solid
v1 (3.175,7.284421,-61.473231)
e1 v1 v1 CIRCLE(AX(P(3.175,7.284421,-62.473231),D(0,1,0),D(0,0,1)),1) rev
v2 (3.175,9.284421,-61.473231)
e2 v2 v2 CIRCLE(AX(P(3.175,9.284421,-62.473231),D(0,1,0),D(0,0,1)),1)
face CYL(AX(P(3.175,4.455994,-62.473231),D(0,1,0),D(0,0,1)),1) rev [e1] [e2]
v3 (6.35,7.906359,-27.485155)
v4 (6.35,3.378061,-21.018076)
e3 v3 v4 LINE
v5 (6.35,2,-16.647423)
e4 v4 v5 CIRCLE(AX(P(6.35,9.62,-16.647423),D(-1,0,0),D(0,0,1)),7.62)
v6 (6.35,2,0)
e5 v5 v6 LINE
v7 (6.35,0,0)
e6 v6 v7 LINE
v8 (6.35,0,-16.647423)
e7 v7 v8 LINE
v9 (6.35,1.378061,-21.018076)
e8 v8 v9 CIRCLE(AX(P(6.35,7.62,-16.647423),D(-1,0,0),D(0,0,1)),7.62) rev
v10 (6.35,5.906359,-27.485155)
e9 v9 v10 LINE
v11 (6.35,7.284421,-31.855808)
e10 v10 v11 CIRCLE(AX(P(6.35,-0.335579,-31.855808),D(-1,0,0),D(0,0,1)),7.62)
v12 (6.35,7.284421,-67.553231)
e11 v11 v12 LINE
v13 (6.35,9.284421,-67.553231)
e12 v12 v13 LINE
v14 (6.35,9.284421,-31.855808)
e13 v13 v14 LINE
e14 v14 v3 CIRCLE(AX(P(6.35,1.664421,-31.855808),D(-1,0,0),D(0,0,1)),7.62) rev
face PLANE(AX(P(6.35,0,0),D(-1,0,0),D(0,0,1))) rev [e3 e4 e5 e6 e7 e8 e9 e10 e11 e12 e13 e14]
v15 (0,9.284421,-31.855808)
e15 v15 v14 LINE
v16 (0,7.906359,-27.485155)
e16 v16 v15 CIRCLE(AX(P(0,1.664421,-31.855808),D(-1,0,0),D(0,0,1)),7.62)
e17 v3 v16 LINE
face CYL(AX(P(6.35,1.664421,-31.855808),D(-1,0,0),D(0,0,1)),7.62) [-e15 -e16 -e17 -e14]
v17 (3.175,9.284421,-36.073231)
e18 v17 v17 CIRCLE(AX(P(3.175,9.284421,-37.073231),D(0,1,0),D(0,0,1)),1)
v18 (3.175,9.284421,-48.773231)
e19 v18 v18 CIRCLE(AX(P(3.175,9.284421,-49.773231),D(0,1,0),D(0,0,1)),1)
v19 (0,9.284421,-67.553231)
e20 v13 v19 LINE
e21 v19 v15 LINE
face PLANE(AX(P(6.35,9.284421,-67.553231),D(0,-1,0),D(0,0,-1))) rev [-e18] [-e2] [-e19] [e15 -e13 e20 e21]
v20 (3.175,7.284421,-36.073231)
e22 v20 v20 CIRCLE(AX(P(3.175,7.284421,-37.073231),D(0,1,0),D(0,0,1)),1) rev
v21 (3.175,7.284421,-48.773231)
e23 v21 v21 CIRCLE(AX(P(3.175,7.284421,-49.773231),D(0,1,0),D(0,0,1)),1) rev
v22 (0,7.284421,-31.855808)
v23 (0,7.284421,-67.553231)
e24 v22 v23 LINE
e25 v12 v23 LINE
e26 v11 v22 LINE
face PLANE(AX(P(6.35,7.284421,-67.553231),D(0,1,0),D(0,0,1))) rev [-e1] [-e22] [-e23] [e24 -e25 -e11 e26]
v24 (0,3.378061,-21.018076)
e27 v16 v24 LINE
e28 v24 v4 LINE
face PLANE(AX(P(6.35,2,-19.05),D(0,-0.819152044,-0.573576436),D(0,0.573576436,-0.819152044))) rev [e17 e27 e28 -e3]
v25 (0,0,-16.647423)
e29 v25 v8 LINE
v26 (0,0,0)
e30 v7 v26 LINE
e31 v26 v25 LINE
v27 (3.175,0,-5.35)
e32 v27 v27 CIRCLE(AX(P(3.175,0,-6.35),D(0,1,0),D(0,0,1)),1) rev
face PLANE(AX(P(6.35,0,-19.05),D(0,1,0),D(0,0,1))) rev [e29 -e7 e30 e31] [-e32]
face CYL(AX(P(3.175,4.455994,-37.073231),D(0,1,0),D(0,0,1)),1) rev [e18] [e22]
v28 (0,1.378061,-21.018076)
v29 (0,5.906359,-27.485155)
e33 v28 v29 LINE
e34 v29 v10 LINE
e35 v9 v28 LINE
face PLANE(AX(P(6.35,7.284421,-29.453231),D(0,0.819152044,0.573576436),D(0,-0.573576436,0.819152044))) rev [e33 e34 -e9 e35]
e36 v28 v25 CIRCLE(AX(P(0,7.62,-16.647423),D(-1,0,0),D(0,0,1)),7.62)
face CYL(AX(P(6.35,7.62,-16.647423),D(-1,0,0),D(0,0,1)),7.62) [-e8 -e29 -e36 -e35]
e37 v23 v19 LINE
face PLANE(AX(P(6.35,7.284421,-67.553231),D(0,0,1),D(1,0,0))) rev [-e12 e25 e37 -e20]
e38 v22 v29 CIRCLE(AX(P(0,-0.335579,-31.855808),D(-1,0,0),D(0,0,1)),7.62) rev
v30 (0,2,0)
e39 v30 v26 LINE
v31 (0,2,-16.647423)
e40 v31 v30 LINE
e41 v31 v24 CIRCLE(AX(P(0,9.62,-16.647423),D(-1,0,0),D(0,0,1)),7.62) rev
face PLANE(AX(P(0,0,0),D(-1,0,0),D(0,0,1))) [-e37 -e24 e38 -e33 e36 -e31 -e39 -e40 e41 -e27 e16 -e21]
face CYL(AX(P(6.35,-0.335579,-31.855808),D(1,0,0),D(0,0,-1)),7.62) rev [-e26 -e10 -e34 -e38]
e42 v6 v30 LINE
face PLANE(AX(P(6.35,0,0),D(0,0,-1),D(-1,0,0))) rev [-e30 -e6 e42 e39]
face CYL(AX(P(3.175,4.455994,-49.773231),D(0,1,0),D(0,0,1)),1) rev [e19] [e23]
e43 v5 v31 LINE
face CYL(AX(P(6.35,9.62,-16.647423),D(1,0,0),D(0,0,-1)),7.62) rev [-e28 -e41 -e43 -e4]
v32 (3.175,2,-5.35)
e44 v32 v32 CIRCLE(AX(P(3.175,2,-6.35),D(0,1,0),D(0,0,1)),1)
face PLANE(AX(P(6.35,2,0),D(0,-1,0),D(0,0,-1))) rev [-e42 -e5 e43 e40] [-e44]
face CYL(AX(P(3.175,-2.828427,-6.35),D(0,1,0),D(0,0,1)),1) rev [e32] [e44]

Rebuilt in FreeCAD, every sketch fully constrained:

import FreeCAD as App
import Part
import Sketcher
Q = App.Units.Quantity


def edges_at(feature, points):
    """Names of the edges that pass closest to the given points."""
    edges = feature.Shape.Edges
    near = lambda p: min(range(len(edges)), key=lambda i: edges[i].distToShape(Part.Vertex(*p))[0])
    return sorted({f"Edge{near(p) + 1}" for p in points})

doc = App.newDocument("Part")
params = doc.addObject("Spreadsheet::Sheet", "Params")
for row, (alias, value) in enumerate([
    ("sketch1_height", "1.5 in"),
    ("sketch1_length", "0.5 in"),
    ("sketch1_height2", "0.75 in"),
    ("pad1_length", "0.25 in"),
    ("pocket1_length", "2 mm"),
    ("pocket2_length", "2 mm"),
    ("linearpattern_pitch", "0.5 in"),
    ("fillet_radius", "0.3 in"),
], start=1):
    params.set(f"A{row}", alias)
    params.set(f"B{row}", "=" + value)
    params.setAlias(f"B{row}", alias)

body = doc.addObject("PartDesign::Body", "Body")

sketch1 = body.newObject("Sketcher::SketchObject", "Sketch")
sketch1.AttachmentSupport = (doc.getObject("YZ_Plane"), [""])
sketch1.MapMode = "FlatFace"
sketch1.addGeometry(Part.LineSegment(App.Vector(2, -19.1, 0), App.Vector(2, 0, 0)), False)
sketch1.addGeometry(Part.LineSegment(App.Vector(2, 0, 0), App.Vector(0, 0, 0)), False)
sketch1.addGeometry(Part.LineSegment(App.Vector(0, 0, 0), App.Vector(0, -19.1, 0)), False)
sketch1.addGeometry(Part.LineSegment(App.Vector(0, -19.1, 0), App.Vector(7.3, -29.5, 0)), False)
sketch1.addGeometry(Part.LineSegment(App.Vector(7.3, -29.5, 0), App.Vector(7.3, -67.6, 0)), False)
sketch1.addGeometry(Part.LineSegment(App.Vector(7.3, -67.6, 0), App.Vector(9.3, -67.6, 0)), False)
sketch1.addGeometry(Part.LineSegment(App.Vector(9.3, -67.6, 0), App.Vector(9.3, -29.5, 0)), False)
sketch1.addGeometry(Part.LineSegment(App.Vector(9.3, -29.5, 0), App.Vector(2, -19.1, 0)), False)
sketch1.addConstraint(Sketcher.Constraint("Coincident", 0, 2, 1, 1))
sketch1.addConstraint(Sketcher.Constraint("Coincident", 1, 2, 2, 1))
sketch1.addConstraint(Sketcher.Constraint("Coincident", 2, 2, 3, 1))
sketch1.addConstraint(Sketcher.Constraint("Coincident", 3, 2, 4, 1))
sketch1.addConstraint(Sketcher.Constraint("Coincident", 4, 2, 5, 1))
sketch1.addConstraint(Sketcher.Constraint("Coincident", 5, 2, 6, 1))
sketch1.addConstraint(Sketcher.Constraint("Coincident", 6, 2, 7, 1))
sketch1.addConstraint(Sketcher.Constraint("Coincident", 7, 2, 0, 1))
sketch1.addConstraint(Sketcher.Constraint("Vertical", 0))
sketch1.addConstraint(Sketcher.Constraint("Horizontal", 1))
sketch1.addConstraint(Sketcher.Constraint("Vertical", 2))
sketch1.addConstraint(Sketcher.Constraint("Vertical", 4))
sketch1.addConstraint(Sketcher.Constraint("Horizontal", 5))
sketch1.addConstraint(Sketcher.Constraint("Vertical", 6))
sketch1.addConstraint(Sketcher.Constraint("Coincident", 1, 2, -1, 1))
sketch1.addConstraint(Sketcher.Constraint("Parallel", 3, 7))
sketch1.addConstraint(Sketcher.Constraint("Horizontal", 3, 2, 6, 2))
sketch1.addConstraint(Sketcher.Constraint("Horizontal", 2, 2, 7, 2))
sketch1.addConstraint(Sketcher.Constraint("DistanceY", 4, 2, 4, 1, Q("1.5 in")))
sketch1.addConstraint(Sketcher.Constraint("Angle", 3, Q("-55 deg")))
sketch1.addConstraint(Sketcher.Constraint("Distance", 3, Q("0.5 in")))
sketch1.addConstraint(Sketcher.Constraint("DistanceY", 0, 1, 0, 2, Q("0.75 in")))
sketch1.addConstraint(Sketcher.Constraint("DistanceX", 1, 2, 1, 1, 2.0))
sketch1.setExpression("Constraints[18]", "Params.sketch1_height")
sketch1.setExpression("Constraints[20]", "Params.sketch1_length")
sketch1.setExpression("Constraints[21]", "Params.sketch1_height2")
pad1 = body.newObject("PartDesign::Pad", "Pad")
pad1.Profile = sketch1
pad1.setExpression("Length", "Params.pad1_length")

sketch2 = body.newObject("Sketcher::SketchObject", "Sketch001")
sketch2.AttachmentSupport = (doc.getObject("XZ_Plane"), [""])
sketch2.MapMode = "FlatFace"
sketch2.AttachmentOffset = App.Placement(App.Vector(0, 0, -2), App.Rotation())
sketch2.addGeometry(Part.Circle(App.Vector(3.2, -6.3, 0), App.Vector(0, 0, 1), 1), False)
sketch2.addConstraint(Sketcher.Constraint("Diameter", 0, 2.0))
sketch2.addConstraint(Sketcher.Constraint("DistanceY", 0, 3, -1, 1, Q("0.25 in")))
sketch2.addConstraint(Sketcher.Constraint("DistanceX", -1, 1, 0, 3, Q("0.125 in")))
pocket1 = body.newObject("PartDesign::Pocket", "Pocket")
pocket1.Profile = sketch2
pocket1.setExpression("Length", "Params.pocket1_length")
pocket1.Reversed = True

sketch3 = body.newObject("Sketcher::SketchObject", "Sketch002")
sketch3.AttachmentSupport = (doc.getObject("XZ_Plane"), [""])
sketch3.MapMode = "FlatFace"
sketch3.AttachmentOffset = App.Placement(App.Vector(0, 0, -9.284421), App.Rotation())
sketch3.addGeometry(Part.Circle(App.Vector(3.2, -62.5, 0), App.Vector(0, 0, 1), 1), False)
sketch3.addConstraint(Sketcher.Constraint("Diameter", 0, 2.0))
sketch3.addConstraint(Sketcher.Constraint("DistanceX", -1, 1, 0, 3, Q("0.125 in")))
sketch3.addConstraint(Sketcher.Constraint("DistanceY", 0, 3, -1, 1, 62.473231))
pocket2 = body.newObject("PartDesign::Pocket", "Pocket001")
pocket2.Profile = sketch3
pocket2.setExpression("Length", "Params.pocket2_length")
pocket2.Reversed = True
doc.recompute()

linearpattern = body.newObject("PartDesign::LinearPattern", "LinearPattern")
linearpattern.Originals = [pocket2]
linearpattern.Direction = (doc.getObject("Z_Axis"), [""])
linearpattern.Mode = "offset"
linearpattern.setExpression("Offset", "Params.linearpattern_pitch")
linearpattern.Occurrences = 3
body.Tip = linearpattern
doc.recompute()

fillet = body.newObject("PartDesign::Fillet", "Fillet")
fillet.Base = (linearpattern, edges_at(linearpattern, [
    (3.175, 2, -19.05),
    (3.175, 9.284, -29.453),
    (3.175, 7.284, -29.453),
    (3.175, 0, -19.05),
]))
fillet.setExpression("Radius", "Params.fillet_radius")

doc.recompute()
